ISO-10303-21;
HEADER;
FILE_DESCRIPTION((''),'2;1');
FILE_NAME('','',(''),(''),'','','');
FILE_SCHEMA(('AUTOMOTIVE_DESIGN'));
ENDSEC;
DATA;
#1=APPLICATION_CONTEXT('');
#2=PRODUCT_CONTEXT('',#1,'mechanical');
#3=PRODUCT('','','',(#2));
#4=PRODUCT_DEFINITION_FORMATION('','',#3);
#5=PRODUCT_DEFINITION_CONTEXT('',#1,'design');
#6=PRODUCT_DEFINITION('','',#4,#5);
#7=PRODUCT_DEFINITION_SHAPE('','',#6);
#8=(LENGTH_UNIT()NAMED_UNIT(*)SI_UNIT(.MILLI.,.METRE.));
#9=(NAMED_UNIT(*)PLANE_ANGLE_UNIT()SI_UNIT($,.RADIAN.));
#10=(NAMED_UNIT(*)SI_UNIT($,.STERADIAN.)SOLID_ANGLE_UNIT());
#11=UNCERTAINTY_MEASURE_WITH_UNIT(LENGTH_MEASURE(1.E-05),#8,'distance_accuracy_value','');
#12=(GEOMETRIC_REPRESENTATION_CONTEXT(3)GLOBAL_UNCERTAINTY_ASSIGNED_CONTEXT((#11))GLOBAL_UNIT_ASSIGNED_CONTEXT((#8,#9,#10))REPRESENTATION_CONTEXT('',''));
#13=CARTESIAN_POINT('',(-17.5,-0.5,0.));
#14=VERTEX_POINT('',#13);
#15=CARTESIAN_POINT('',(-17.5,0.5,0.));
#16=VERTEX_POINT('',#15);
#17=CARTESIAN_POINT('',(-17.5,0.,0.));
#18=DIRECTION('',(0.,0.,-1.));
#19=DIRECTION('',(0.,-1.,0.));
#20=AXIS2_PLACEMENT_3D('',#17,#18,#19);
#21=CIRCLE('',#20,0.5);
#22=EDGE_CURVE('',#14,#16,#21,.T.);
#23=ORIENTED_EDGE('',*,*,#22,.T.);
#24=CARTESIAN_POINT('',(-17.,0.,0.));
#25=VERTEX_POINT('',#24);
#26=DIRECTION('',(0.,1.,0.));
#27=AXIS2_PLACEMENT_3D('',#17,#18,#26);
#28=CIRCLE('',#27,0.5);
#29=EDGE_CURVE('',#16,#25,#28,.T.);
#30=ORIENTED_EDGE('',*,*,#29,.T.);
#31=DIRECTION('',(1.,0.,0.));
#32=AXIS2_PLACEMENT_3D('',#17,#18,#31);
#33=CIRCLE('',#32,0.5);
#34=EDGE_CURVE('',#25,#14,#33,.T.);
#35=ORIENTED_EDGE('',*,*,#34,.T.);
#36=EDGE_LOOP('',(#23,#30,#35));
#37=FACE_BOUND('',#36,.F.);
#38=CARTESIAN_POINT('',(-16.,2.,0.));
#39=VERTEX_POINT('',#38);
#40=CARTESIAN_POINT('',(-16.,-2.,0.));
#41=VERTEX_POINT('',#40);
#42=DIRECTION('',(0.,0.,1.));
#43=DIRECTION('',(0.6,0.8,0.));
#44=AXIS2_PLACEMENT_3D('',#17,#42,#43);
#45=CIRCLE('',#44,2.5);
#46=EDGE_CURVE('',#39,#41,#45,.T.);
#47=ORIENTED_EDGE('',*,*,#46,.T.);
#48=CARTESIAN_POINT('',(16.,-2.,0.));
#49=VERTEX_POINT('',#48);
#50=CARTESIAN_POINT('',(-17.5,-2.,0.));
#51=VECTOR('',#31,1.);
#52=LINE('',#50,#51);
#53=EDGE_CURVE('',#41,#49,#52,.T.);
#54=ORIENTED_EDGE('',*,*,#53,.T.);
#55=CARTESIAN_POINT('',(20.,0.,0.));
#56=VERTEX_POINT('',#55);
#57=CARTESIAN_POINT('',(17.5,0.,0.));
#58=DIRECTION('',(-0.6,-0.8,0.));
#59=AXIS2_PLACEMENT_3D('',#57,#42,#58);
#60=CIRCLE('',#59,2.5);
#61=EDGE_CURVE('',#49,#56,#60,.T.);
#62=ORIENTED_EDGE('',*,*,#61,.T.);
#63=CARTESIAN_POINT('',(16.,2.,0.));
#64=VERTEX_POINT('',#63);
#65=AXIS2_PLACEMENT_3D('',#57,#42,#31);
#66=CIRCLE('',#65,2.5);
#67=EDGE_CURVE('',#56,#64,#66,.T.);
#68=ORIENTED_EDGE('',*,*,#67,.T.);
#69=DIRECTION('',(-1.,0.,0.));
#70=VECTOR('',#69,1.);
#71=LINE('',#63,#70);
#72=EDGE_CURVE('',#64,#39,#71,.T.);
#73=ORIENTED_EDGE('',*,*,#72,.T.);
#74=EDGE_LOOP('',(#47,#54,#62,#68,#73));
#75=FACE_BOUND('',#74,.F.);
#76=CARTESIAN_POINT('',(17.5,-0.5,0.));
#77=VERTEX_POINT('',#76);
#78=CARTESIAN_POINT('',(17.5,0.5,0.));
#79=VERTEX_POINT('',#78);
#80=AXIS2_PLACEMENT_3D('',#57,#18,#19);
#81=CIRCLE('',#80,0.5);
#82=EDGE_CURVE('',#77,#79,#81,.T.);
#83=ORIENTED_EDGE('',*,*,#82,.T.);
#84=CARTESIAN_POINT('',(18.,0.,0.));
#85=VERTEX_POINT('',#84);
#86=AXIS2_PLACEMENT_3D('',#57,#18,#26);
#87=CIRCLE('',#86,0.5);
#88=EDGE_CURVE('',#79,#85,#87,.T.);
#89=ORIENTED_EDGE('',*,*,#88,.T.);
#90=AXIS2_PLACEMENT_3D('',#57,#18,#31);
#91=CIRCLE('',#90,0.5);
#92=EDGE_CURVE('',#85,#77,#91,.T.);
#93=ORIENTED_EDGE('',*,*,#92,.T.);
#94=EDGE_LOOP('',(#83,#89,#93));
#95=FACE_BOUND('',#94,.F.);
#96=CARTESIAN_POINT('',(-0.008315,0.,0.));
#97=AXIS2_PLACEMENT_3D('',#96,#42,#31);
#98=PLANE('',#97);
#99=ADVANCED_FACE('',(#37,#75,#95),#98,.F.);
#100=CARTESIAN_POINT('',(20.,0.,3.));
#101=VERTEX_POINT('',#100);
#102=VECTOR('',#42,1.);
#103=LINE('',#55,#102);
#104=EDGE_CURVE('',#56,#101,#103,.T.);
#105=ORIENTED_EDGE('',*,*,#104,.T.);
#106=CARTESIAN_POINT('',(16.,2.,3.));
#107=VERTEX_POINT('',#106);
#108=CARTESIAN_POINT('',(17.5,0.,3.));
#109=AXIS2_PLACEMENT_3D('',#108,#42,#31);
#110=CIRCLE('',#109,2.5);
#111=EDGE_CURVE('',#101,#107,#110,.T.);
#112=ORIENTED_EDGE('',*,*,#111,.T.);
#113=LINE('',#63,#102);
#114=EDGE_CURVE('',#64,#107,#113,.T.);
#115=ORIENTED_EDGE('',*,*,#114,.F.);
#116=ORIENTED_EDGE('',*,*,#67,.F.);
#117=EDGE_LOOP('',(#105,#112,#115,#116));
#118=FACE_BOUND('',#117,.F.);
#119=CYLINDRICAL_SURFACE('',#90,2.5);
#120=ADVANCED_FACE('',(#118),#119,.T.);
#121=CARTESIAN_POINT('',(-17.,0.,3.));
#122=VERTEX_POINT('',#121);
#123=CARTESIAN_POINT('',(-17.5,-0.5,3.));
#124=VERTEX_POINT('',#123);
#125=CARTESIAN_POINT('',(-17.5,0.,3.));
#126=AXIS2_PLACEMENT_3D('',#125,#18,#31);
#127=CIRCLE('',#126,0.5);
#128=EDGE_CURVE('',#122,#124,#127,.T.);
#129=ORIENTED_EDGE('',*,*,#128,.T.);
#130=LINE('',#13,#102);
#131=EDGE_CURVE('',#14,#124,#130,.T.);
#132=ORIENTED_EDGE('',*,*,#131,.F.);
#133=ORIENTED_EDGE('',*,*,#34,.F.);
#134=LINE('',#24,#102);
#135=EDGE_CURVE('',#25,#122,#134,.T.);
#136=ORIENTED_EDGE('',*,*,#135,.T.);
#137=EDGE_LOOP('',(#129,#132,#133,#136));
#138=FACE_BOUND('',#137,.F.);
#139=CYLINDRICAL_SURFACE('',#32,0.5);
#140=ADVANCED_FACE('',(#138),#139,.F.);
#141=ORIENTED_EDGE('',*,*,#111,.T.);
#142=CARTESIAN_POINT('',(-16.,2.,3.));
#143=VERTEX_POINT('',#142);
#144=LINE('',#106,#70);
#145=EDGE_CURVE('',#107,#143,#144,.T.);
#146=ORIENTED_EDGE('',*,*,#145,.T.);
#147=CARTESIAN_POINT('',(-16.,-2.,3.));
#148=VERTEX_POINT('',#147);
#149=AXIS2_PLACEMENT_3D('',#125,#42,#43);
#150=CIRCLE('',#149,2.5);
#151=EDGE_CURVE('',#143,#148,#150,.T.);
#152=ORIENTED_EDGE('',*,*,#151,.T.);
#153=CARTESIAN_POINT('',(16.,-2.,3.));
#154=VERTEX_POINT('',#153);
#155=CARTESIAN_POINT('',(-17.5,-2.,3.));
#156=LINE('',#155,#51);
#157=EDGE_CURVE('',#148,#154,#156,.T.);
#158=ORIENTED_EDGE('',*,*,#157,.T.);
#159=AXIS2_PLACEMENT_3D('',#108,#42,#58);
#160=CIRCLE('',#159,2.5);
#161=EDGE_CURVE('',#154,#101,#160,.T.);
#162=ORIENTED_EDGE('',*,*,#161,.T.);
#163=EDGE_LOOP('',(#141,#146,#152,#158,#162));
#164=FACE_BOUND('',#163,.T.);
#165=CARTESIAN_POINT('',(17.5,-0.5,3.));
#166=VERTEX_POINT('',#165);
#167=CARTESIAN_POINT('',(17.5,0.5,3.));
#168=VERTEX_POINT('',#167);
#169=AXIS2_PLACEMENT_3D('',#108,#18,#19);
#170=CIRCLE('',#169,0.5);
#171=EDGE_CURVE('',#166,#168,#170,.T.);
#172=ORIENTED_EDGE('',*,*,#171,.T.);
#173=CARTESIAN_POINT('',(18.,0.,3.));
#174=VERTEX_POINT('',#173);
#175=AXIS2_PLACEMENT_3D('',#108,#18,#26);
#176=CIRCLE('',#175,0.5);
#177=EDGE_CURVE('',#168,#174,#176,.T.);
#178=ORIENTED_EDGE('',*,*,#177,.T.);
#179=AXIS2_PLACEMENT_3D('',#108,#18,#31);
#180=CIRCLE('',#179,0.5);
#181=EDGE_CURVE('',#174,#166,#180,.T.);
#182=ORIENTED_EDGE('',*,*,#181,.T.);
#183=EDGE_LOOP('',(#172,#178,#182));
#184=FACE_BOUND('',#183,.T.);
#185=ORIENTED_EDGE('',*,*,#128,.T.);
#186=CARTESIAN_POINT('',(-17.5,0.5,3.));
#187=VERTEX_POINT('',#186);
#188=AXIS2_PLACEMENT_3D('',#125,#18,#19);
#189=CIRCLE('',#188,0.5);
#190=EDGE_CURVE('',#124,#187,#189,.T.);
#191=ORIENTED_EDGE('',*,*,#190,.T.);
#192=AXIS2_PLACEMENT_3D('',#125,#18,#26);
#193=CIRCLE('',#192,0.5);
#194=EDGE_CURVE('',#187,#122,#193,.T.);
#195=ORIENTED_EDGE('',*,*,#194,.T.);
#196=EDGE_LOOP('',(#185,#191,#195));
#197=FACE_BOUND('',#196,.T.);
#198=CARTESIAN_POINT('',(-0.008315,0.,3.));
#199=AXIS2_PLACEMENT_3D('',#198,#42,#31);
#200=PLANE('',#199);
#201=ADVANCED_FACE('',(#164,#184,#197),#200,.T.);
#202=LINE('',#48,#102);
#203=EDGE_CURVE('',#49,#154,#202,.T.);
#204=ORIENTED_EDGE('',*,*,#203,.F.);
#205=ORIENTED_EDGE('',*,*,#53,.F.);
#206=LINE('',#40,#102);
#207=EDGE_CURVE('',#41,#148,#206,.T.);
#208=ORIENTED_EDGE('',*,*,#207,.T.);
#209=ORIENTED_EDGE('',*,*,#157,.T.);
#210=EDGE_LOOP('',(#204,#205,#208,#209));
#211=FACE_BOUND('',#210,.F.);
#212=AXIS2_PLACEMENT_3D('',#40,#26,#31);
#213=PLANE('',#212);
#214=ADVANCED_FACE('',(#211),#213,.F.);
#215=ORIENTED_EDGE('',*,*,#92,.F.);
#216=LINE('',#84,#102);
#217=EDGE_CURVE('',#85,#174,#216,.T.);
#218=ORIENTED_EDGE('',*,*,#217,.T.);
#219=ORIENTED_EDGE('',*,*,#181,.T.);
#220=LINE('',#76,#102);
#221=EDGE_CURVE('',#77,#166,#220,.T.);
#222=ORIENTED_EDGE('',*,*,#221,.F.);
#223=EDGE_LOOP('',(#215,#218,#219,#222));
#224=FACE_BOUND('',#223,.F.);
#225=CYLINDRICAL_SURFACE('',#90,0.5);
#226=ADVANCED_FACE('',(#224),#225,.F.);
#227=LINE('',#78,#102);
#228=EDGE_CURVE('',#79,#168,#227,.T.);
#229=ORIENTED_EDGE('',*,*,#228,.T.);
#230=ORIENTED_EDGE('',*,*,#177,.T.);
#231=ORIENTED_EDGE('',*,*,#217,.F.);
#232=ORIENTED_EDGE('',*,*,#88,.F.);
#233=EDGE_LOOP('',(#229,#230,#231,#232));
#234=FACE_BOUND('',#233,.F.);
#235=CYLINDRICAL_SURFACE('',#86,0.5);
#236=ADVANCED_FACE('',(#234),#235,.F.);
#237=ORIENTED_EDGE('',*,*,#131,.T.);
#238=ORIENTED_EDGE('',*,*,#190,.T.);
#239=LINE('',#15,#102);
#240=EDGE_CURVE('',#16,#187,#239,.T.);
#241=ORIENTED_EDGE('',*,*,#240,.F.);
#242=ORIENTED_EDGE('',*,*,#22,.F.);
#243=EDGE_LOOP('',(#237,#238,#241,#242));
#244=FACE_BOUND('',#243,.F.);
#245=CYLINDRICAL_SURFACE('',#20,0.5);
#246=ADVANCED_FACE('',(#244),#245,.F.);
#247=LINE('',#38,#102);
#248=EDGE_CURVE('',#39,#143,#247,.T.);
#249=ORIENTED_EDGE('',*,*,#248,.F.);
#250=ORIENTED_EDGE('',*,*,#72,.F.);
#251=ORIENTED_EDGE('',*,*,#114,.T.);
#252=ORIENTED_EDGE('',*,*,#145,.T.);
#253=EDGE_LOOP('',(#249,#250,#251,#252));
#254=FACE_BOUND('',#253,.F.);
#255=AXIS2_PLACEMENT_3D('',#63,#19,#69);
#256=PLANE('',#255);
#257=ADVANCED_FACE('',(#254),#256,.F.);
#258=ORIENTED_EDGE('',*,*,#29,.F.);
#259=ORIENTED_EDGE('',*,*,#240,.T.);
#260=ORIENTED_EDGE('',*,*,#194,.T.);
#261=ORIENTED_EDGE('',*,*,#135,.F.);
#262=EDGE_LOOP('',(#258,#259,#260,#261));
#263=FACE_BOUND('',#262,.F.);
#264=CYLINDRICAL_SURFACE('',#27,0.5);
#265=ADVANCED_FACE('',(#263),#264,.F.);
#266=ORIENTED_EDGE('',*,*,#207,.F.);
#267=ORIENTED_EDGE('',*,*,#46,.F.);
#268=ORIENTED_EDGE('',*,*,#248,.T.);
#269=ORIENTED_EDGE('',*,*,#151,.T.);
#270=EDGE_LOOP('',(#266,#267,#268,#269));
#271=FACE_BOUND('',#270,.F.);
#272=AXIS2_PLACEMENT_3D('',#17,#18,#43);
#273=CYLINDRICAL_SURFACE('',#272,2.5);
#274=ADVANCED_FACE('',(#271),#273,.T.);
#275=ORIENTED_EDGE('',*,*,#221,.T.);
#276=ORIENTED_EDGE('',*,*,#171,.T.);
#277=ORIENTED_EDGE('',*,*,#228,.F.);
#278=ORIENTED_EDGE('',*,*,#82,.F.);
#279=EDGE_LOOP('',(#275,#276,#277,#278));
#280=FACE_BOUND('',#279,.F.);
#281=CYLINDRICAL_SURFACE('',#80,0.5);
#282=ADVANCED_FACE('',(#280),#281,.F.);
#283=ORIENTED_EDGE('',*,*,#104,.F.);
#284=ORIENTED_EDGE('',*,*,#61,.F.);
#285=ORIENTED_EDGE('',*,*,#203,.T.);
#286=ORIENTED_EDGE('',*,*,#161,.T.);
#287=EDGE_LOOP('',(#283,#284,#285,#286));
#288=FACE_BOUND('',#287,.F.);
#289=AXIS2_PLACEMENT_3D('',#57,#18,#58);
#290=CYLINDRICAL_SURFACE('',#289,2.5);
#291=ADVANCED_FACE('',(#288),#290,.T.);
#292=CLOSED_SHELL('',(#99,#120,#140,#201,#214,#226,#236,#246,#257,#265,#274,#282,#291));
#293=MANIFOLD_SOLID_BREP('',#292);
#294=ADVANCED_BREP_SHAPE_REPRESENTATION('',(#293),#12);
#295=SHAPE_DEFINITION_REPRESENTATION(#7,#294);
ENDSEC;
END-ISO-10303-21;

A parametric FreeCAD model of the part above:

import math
import FreeCAD as App
import Part
import Sketcher
from FreeCAD import Vector
Q = App.Units.Quantity

doc = App.newDocument("Part")
body = doc.addObject("PartDesign::Body", "Body")

# Sketch on XY plane
sketch1 = body.newObject("Sketcher::SketchObject", "Sketch")
sketch1.AttachmentSupport = (doc.getObject("XY_Plane"), [""])
sketch1.MapMode = "FlatFace"
sketch1.addGeometry([
    Part.ArcOfCircle(Part.Circle(Vector(17.5, 0, 0), Vector(0, 0, 1), 2.5), math.radians(-127), math.radians(0)),  # 0
    Part.ArcOfCircle(Part.Circle(Vector(17.5, 0, 0), Vector(0, 0, 1), 2.5), math.radians(0), math.radians(127)),  # 1
    Part.LineSegment(Vector(16, 2, 0), Vector(-16, 2, 0)),  # 2
    Part.ArcOfCircle(Part.Circle(Vector(-17.5, 0, 0), Vector(0, 0, 1), 2.5), math.radians(53), math.radians(307)),  # 3
    Part.LineSegment(Vector(-16, -2, 0), Vector(16, -2, 0)),  # 4
    Part.ArcOfCircle(Part.Circle(Vector(-17.5, 0, 0), Vector(0, 0, 1), 0.5), math.radians(0), math.radians(90)),  # 5
    Part.ArcOfCircle(Part.Circle(Vector(-17.5, 0, 0), Vector(0, 0, 1), 0.5), math.radians(-90), math.radians(0)),  # 6
    Part.ArcOfCircle(Part.Circle(Vector(-17.5, 0, 0), Vector(0, 0, 1), 0.5), math.radians(90), math.radians(270)),  # 7
    Part.ArcOfCircle(Part.Circle(Vector(17.5, 0, 0), Vector(0, 0, 1), 0.5), math.radians(90), math.radians(270)),  # 8
    Part.ArcOfCircle(Part.Circle(Vector(17.5, 0, 0), Vector(0, 0, 1), 0.5), math.radians(0), math.radians(90)),  # 9
    Part.ArcOfCircle(Part.Circle(Vector(17.5, 0, 0), Vector(0, 0, 1), 0.5), math.radians(-90), math.radians(0)),  # 10
], False)
sketch1.addConstraint([
    Sketcher.Constraint("Tangent", 0, 2, 1, 1),
    Sketcher.Constraint("Coincident", 1, 2, 2, 1),
    Sketcher.Constraint("Coincident", 2, 2, 3, 1),
    Sketcher.Constraint("Coincident", 3, 2, 4, 1),
    Sketcher.Constraint("Coincident", 4, 2, 0, 1),
    Sketcher.Constraint("Tangent", 5, 1, 6, 2),
    Sketcher.Constraint("Tangent", 6, 1, 7, 2),
    Sketcher.Constraint("Tangent", 7, 1, 5, 2),
    Sketcher.Constraint("Tangent", 8, 1, 9, 2),
    Sketcher.Constraint("Tangent", 9, 1, 10, 2),
    Sketcher.Constraint("Tangent", 10, 1, 8, 2),
    Sketcher.Constraint("Horizontal", 2),
    Sketcher.Constraint("Horizontal", 4),
    Sketcher.Constraint("Coincident", 5, 3, 3, 3),
    Sketcher.Constraint("Coincident", 8, 3, 0, 3),
    Sketcher.Constraint("Equal", 0, 1),
    Sketcher.Constraint("Equal", 1, 3),
    Sketcher.Constraint("Equal", 7, 8),
    Sketcher.Constraint("Symmetric", 0, 3, 3, 3, -1, 1),
    Sketcher.Constraint("Symmetric", 7, 1, 8, 1, -2),
    Sketcher.Constraint("PointOnObject", 0, 2, -1),
    Sketcher.Constraint("PointOnObject", 5, 1, -1),
    Sketcher.Constraint("PointOnObject", 9, 1, -1),
    Sketcher.Constraint("Vertical", 2, 2, 3, 2),
    Sketcher.Constraint("Vertical", 7, 3, 6, 1),
    Sketcher.Constraint("Vertical", 6, 1, 7, 1),
    Sketcher.Constraint("Vertical", 8, 1, 10, 1),
    Sketcher.Constraint("Radius", 0, Q("2.5 mm")),
    Sketcher.Constraint("Radius", 5, Q("0.5 mm")),
    Sketcher.Constraint("DistanceX", 2, 2, 2, 1, Q("32 mm")),
    Sketcher.Constraint("DistanceX", -1, 1, 0, 2, Q("20 mm")),
])
pad1 = body.newObject("PartDesign::Pad", "Pad")
pad1.Profile = sketch1
pad1.Length = 3

doc.recompute()
